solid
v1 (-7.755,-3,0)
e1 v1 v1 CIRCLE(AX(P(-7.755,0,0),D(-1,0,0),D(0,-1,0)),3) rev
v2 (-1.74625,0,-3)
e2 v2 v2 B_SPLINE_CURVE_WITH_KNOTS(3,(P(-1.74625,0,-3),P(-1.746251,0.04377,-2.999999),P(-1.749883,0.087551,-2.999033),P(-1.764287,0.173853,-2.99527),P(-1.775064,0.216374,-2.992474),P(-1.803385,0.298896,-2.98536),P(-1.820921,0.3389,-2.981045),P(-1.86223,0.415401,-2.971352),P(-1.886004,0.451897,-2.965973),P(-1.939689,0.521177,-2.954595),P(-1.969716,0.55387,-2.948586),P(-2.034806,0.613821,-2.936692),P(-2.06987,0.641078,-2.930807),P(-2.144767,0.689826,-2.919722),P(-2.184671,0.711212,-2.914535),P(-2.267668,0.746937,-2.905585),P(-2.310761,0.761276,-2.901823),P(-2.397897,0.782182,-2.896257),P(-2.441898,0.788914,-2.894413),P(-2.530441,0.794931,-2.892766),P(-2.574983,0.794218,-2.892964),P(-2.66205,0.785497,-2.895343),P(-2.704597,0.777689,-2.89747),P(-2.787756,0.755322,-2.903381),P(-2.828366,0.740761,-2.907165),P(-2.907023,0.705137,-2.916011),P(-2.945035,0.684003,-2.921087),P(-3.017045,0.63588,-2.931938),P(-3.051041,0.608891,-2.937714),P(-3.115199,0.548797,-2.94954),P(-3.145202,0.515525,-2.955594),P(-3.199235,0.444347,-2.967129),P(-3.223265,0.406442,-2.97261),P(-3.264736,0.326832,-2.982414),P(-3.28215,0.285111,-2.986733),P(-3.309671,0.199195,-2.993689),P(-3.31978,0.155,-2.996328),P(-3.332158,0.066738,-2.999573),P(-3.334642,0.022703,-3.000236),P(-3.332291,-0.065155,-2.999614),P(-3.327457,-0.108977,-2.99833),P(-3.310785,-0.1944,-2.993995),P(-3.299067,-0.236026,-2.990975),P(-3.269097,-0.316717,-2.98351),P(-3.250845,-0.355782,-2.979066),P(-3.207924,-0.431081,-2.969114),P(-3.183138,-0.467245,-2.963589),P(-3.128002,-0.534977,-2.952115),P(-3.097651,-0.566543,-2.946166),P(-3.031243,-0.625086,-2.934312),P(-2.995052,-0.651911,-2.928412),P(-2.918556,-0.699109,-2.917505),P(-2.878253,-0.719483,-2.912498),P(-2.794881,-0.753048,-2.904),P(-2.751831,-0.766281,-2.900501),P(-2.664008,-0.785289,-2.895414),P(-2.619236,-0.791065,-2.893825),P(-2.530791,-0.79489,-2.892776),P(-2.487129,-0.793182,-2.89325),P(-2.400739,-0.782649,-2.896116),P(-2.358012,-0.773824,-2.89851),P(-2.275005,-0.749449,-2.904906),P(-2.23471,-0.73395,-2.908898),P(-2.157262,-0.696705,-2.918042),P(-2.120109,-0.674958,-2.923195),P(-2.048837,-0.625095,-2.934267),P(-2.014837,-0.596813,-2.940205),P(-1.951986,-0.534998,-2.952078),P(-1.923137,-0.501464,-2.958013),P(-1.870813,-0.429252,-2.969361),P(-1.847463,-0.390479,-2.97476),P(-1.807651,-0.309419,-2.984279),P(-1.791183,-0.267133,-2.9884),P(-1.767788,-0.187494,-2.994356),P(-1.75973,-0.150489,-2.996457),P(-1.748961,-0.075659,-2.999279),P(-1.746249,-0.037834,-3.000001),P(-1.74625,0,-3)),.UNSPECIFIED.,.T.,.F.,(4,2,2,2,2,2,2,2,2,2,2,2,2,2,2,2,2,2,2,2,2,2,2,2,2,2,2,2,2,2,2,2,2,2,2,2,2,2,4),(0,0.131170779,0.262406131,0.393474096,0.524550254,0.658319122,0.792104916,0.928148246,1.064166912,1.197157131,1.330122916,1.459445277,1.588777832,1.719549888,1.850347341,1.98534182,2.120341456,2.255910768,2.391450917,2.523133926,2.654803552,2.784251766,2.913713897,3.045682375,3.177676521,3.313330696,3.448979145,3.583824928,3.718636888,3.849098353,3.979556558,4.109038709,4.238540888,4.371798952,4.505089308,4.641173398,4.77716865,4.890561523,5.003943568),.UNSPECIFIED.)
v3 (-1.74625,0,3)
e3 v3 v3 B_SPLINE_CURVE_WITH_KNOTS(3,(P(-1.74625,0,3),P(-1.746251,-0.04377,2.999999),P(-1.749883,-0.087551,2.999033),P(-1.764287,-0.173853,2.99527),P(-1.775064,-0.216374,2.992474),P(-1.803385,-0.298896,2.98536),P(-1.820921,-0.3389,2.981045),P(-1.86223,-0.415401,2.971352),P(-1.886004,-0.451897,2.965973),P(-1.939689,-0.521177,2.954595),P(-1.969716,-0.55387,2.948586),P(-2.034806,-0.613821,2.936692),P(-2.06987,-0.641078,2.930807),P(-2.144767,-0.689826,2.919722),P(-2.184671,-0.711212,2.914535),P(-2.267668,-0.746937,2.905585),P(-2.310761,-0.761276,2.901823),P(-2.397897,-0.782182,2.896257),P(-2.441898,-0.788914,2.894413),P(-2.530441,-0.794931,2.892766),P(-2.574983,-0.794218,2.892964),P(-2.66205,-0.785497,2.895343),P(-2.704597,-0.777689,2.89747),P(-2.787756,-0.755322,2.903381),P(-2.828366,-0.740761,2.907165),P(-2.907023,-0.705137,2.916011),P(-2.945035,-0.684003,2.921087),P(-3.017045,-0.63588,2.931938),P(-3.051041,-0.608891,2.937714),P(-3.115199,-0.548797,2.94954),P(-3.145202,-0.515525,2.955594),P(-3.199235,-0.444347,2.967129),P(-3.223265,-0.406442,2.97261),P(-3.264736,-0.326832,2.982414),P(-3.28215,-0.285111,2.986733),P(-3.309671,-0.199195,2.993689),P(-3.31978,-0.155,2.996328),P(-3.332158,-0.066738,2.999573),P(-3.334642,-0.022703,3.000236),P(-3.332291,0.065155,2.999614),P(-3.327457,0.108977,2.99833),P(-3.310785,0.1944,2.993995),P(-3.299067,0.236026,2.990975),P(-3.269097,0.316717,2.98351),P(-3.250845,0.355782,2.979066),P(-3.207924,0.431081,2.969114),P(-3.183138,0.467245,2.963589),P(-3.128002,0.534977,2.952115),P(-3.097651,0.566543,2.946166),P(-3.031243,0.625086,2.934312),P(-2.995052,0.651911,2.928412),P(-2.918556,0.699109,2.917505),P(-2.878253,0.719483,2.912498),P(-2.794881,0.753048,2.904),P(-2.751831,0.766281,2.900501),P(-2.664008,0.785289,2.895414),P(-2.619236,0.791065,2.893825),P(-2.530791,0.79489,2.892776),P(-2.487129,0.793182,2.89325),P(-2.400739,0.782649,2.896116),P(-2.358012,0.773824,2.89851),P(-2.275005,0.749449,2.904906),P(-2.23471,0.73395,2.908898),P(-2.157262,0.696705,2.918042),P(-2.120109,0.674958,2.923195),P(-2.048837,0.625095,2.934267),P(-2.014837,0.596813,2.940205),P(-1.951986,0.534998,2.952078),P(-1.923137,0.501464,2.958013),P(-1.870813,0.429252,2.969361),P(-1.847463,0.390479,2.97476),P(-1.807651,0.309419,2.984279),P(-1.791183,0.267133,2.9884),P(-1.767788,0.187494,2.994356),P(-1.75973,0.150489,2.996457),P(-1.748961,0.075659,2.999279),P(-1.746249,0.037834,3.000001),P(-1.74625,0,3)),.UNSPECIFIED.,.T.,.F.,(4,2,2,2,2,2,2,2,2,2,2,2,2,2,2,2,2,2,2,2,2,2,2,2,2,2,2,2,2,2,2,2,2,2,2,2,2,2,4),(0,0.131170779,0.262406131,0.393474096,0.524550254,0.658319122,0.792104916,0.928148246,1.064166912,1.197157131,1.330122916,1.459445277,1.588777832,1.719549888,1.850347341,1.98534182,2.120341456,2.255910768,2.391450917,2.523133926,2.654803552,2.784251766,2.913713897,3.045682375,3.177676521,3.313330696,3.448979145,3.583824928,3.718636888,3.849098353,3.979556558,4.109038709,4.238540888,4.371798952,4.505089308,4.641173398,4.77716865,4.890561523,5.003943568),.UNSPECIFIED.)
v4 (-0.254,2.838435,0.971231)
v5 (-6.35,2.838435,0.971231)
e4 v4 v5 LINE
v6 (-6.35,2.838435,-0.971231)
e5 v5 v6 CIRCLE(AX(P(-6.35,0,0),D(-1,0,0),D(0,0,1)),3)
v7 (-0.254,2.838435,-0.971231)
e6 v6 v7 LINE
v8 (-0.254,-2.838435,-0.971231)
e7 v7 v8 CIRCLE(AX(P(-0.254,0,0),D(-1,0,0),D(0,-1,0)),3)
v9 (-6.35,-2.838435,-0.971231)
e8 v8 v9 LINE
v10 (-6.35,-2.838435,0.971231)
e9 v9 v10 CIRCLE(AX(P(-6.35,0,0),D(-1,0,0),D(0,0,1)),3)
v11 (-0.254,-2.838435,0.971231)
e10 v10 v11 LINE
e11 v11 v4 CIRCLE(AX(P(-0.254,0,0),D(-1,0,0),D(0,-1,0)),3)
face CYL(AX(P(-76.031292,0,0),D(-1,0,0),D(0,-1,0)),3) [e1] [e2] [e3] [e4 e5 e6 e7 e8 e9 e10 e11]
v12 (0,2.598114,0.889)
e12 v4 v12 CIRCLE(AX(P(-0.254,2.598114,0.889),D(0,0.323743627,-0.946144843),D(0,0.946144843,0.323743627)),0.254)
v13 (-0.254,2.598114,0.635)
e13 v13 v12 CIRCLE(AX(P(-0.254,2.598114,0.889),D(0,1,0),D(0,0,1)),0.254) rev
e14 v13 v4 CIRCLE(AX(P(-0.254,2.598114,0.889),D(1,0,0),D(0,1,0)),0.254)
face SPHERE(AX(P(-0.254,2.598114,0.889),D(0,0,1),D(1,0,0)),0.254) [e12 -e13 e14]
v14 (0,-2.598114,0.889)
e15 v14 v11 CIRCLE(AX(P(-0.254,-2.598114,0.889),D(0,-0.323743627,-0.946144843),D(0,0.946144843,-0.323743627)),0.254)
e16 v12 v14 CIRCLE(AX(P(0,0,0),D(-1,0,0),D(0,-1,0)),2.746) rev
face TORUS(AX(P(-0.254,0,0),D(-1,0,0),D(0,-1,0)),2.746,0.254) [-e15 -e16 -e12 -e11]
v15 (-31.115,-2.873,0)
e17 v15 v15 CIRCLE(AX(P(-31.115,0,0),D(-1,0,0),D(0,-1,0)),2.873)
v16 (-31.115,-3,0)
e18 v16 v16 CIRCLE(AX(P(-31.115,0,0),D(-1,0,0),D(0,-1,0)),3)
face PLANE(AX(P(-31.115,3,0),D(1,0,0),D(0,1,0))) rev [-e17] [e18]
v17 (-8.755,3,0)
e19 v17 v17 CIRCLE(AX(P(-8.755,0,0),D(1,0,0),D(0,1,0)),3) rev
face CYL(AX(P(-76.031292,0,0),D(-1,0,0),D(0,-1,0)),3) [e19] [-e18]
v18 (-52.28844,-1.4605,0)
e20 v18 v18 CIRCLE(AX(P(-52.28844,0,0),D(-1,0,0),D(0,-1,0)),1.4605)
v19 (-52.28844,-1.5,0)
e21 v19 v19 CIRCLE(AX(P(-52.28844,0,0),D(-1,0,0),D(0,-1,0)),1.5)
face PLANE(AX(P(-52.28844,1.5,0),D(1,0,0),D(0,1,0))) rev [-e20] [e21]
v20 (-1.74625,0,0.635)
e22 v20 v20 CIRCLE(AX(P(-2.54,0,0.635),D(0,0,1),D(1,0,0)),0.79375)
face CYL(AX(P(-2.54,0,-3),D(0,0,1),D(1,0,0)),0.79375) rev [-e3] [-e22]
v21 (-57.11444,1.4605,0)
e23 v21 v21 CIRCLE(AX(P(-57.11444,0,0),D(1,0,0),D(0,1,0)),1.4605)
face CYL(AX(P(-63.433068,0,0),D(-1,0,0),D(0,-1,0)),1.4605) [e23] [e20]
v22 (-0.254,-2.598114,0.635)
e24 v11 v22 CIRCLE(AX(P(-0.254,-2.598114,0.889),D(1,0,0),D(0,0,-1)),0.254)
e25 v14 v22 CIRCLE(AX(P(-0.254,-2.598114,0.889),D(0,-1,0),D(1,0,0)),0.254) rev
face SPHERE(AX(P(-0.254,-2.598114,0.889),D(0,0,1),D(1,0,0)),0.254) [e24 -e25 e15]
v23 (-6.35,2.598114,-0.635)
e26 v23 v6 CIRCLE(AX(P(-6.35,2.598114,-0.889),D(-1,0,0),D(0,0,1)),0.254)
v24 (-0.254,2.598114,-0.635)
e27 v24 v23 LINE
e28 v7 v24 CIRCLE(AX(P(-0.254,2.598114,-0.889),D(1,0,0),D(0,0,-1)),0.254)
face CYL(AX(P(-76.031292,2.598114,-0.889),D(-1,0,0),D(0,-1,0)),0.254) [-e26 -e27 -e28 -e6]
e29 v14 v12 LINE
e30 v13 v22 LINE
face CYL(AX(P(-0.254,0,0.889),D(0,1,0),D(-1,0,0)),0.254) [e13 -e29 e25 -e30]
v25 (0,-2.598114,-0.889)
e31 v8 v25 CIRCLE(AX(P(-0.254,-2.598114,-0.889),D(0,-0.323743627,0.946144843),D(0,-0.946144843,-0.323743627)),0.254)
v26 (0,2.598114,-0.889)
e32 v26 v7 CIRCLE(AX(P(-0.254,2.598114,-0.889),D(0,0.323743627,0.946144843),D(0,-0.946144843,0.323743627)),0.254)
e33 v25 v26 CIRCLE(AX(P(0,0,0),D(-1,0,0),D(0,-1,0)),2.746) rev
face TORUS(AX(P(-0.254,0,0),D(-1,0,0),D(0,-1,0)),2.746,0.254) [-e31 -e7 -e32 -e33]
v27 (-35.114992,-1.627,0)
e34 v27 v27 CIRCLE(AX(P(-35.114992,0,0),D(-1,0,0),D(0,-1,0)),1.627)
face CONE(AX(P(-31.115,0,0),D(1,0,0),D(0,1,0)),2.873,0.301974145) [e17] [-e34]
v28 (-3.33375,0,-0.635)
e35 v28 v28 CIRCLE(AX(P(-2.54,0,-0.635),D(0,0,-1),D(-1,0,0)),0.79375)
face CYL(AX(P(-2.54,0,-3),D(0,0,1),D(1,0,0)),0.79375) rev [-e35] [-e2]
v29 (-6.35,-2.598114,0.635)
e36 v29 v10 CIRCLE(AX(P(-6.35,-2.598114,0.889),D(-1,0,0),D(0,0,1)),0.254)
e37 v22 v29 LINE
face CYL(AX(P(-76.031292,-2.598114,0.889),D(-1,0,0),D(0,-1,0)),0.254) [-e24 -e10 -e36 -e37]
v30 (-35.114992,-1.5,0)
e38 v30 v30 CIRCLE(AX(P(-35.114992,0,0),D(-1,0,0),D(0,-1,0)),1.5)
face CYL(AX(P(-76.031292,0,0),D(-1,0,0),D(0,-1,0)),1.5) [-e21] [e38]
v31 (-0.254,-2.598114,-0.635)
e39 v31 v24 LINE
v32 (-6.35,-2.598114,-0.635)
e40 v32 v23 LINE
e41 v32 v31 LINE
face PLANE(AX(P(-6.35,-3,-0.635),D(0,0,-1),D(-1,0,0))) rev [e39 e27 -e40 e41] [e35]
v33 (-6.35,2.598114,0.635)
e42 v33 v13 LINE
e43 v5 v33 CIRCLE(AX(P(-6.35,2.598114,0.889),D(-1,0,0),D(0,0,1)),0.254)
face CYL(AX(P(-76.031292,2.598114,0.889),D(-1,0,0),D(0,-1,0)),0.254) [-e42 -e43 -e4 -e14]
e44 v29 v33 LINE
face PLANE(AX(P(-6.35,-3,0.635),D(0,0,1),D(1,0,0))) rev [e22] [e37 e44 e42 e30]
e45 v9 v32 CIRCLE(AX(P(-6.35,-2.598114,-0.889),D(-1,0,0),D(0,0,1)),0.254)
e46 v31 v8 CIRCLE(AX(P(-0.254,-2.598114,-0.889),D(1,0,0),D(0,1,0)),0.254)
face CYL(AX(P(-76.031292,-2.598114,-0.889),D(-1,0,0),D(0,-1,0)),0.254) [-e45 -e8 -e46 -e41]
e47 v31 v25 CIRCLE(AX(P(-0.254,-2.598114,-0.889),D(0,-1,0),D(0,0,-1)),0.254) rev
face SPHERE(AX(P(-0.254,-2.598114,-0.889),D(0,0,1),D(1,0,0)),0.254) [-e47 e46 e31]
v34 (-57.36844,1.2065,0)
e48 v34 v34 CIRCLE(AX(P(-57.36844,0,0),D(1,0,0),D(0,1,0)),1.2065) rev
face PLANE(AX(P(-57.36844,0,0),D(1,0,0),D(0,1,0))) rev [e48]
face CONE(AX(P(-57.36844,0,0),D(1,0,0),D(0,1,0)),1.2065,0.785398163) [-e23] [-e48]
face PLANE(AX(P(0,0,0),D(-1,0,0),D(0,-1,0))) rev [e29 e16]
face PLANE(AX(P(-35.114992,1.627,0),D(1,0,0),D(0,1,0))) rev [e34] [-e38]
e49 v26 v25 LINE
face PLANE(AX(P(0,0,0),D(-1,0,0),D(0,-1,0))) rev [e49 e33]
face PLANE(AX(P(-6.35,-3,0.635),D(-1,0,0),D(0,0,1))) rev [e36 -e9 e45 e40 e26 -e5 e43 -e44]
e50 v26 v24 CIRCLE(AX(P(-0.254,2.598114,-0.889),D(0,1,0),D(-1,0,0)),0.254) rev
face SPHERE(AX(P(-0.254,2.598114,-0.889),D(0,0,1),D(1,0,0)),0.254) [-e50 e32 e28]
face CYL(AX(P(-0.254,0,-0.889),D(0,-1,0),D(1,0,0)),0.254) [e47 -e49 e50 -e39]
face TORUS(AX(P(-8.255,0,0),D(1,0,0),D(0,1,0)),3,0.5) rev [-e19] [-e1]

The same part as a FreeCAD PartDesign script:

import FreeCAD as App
import Part
import Sketcher
from FreeCAD import Vector
Q = App.Units.Quantity


def edges_at(feature, points):
    """Names of the edges that pass closest to the given points."""
    edges = feature.Shape.Edges
    near = lambda p: min(range(len(edges)), key=lambda i: edges[i].distToShape(Part.Vertex(*p))[0])
    return sorted({f"Edge{near(p) + 1}" for p in points})

doc = App.newDocument("Part")
body = doc.addObject("PartDesign::Body", "Body")

# Sketch on XY plane
sketch1 = body.newObject("Sketcher::SketchObject", "Sketch")
sketch1.AttachmentSupport = (doc.getObject("XY_Plane"), [""])
sketch1.MapMode = "FlatFace"
sketch1.addGeometry(Part.LineSegment(Vector(0, 0, 0), Vector(0, 3, 0)), False)
sketch1.addGeometry(Part.LineSegment(Vector(0, 3, 0), Vector(-31.115, 3, 0)), False)
sketch1.addGeometry(Part.LineSegment(Vector(-31.115, 3, 0), Vector(-31.115, 2.873, 0)), False)
sketch1.addGeometry(Part.LineSegment(Vector(-31.115, 2.873, 0), Vector(-35.114992, 1.627, 0)), False)
sketch1.addGeometry(Part.LineSegment(Vector(-35.114992, 1.627, 0), Vector(-35.114992, 1.5, 0)), False)
sketch1.addGeometry(Part.LineSegment(Vector(-35.114992, 1.5, 0), Vector(-57.36844, 1.5, 0)), False)
sketch1.addGeometry(Part.LineSegment(Vector(-57.36844, 1.5, 0), Vector(-57.36844, 0, 0)), False)
sketch1.addGeometry(Part.LineSegment(Vector(-57.36844, 0, 0), Vector(0, 0, 0)), False)
sketch1.addConstraint(Sketcher.Constraint("Coincident", 0, 2, 1, 1))
sketch1.addConstraint(Sketcher.Constraint("Coincident", 1, 2, 2, 1))
sketch1.addConstraint(Sketcher.Constraint("Coincident", 2, 2, 3, 1))
sketch1.addConstraint(Sketcher.Constraint("Coincident", 3, 2, 4, 1))
sketch1.addConstraint(Sketcher.Constraint("Coincident", 4, 2, 5, 1))
sketch1.addConstraint(Sketcher.Constraint("Coincident", 5, 2, 6, 1))
sketch1.addConstraint(Sketcher.Constraint("Coincident", 6, 2, 7, 1))
sketch1.addConstraint(Sketcher.Constraint("Coincident", 7, 2, 0, 1))
sketch1.addConstraint(Sketcher.Constraint("Vertical", 0))
sketch1.addConstraint(Sketcher.Constraint("Horizontal", 1))
sketch1.addConstraint(Sketcher.Constraint("Vertical", 2))
sketch1.addConstraint(Sketcher.Constraint("Vertical", 4))
sketch1.addConstraint(Sketcher.Constraint("Horizontal", 5))
sketch1.addConstraint(Sketcher.Constraint("Vertical", 6))
sketch1.addConstraint(Sketcher.Constraint("Horizontal", 7))
sketch1.addConstraint(Sketcher.Constraint("Coincident", 7, 2, -1, 1))
sketch1.addConstraint(Sketcher.Constraint("Equal", 2, 4))
sketch1.addConstraint(Sketcher.Constraint("DistanceX", 1, 2, 1, 1, Q("1.225 in")))
sketch1.addConstraint(Sketcher.Constraint("DistanceY", 2, 2, 2, 1, Q("0.005 in")))
sketch1.addConstraint(Sketcher.Constraint("DistanceX", 7, 1, 7, 2, Q("2.2586 in")))
sketch1.addConstraint(Sketcher.Constraint("DistanceY", 0, 1, 0, 2, 3.0))
sketch1.addConstraint(Sketcher.Constraint("DistanceY", 6, 2, 6, 1, 1.5))
sketch1.addConstraint(Sketcher.Constraint("DistanceX", 5, 2, 5, 1, 22.253448))
revolution = body.newObject("PartDesign::Revolution", "Revolution")
revolution.Profile = sketch1
revolution.ReferenceAxis = (sketch1, ["H_Axis"])
revolution.Angle = 360

# Sketch on XZ plane
sketch2 = body.newObject("Sketcher::SketchObject", "Sketch001")
sketch2.AttachmentSupport = (doc.getObject("XZ_Plane"), [""])
sketch2.MapMode = "FlatFace"
sketch2.addGeometry(Part.LineSegment(Vector(-6.35, -0.635, 0), Vector(-6.35, 0.635, 0)), False)
sketch2.addGeometry(Part.LineSegment(Vector(-6.35, 0.635, 0), Vector(6.35, 0.635, 0)), False)
sketch2.addGeometry(Part.LineSegment(Vector(6.35, 0.635, 0), Vector(6.35, -0.635, 0)), False)
sketch2.addGeometry(Part.LineSegment(Vector(6.35, -0.635, 0), Vector(-6.35, -0.635, 0)), False)
sketch2.addConstraint(Sketcher.Constraint("Coincident", 0, 2, 1, 1))
sketch2.addConstraint(Sketcher.Constraint("Coincident", 1, 2, 2, 1))
sketch2.addConstraint(Sketcher.Constraint("Coincident", 2, 2, 3, 1))
sketch2.addConstraint(Sketcher.Constraint("Coincident", 3, 2, 0, 1))
sketch2.addConstraint(Sketcher.Constraint("Vertical", 0))
sketch2.addConstraint(Sketcher.Constraint("Horizontal", 1))
sketch2.addConstraint(Sketcher.Constraint("Vertical", 2))
sketch2.addConstraint(Sketcher.Constraint("Horizontal", 3))
sketch2.addConstraint(Sketcher.Constraint("Symmetric", 0, 2, 2, 2, -1, 1))
sketch2.addConstraint(Sketcher.Constraint("DistanceX", 1, 1, 1, 2, Q("0.5 in")))
sketch2.addConstraint(Sketcher.Constraint("DistanceY", 0, 1, 0, 2, Q("0.05 in")))
pocket1 = body.newObject("PartDesign::Pocket", "Pocket")
pocket1.Profile = sketch2
pocket1.Type = "ThroughAll"
pocket1.Midplane = True

# Sketch on XY plane
sketch3 = body.newObject("Sketcher::SketchObject", "Sketch002")
sketch3.AttachmentSupport = (doc.getObject("XY_Plane"), [""])
sketch3.MapMode = "FlatFace"
sketch3.addGeometry(Part.Circle(Vector(-2.54, 0, 0), Vector(0, 0, 1), 0.79375), False)
sketch3.addConstraint(Sketcher.Constraint("PointOnObject", 0, 3, -1))
sketch3.addConstraint(Sketcher.Constraint("Diameter", 0, Q("0.0625 in")))
sketch3.addConstraint(Sketcher.Constraint("DistanceX", 0, 3, -1, 1, Q("0.1 in")))
pocket2 = body.newObject("PartDesign::Pocket", "Pocket001")
pocket2.Profile = sketch3
pocket2.Type = "ThroughAll"
pocket2.Midplane = True

# Sketch on XY plane
sketch4 = body.newObject("Sketcher::SketchObject", "Sketch003")
sketch4.AttachmentSupport = (doc.getObject("XY_Plane"), [""])
sketch4.MapMode = "FlatFace"
sketch4.addGeometry(Part.LineSegment(Vector(-57.36844, 1.5, 0), Vector(-57.36844, 1.4605, 0)), False)
sketch4.addGeometry(Part.LineSegment(Vector(-57.36844, 1.4605, 0), Vector(-52.28844, 1.4605, 0)), False)
sketch4.addGeometry(Part.LineSegment(Vector(-52.28844, 1.4605, 0), Vector(-52.28844, 1.5, 0)), False)
sketch4.addGeometry(Part.LineSegment(Vector(-52.28844, 1.5, 0), Vector(-57.36844, 1.5, 0)), False)
sketch4.addConstraint(Sketcher.Constraint("Coincident", 0, 2, 1, 1))
sketch4.addConstraint(Sketcher.Constraint("Coincident", 1, 2, 2, 1))
sketch4.addConstraint(Sketcher.Constraint("Coincident", 2, 2, 3, 1))
sketch4.addConstraint(Sketcher.Constraint("Coincident", 3, 2, 0, 1))
sketch4.addConstraint(Sketcher.Constraint("Vertical", 0))
sketch4.addConstraint(Sketcher.Constraint("Horizontal", 1))
sketch4.addConstraint(Sketcher.Constraint("Vertical", 2))
sketch4.addConstraint(Sketcher.Constraint("Horizontal", 3))
sketch4.addConstraint(Sketcher.Constraint("DistanceX", 1, 1, 1, 2, Q("0.2 in")))
sketch4.addConstraint(Sketcher.Constraint("DistanceY", 0, 2, 0, 1, 0.0395))
sketch4.addConstraint(Sketcher.Constraint("DistanceX", 0, 2, -1, 1, Q("2.2586 in")))
sketch4.addConstraint(Sketcher.Constraint("DistanceY", -1, 1, 0, 2, Q("0.0575 in")))
groove = body.newObject("PartDesign::Groove", "Groove")
groove.Profile = sketch4
groove.ReferenceAxis = (sketch4, ["H_Axis"])
groove.Angle = 360
doc.recompute()

chamfer = body.newObject("PartDesign::Chamfer", "Chamfer")
chamfer.Base = (groove, edges_at(groove, [(-57.368, -1.46, 0)]))
chamfer.Size = Q("0.01 in")
doc.recompute()

fillet = body.newObject("PartDesign::Fillet", "Fillet")
fillet.Base = (chamfer, edges_at(chamfer, [
    (0, 0, 3),
    (0, 0, -3),
    (0, 0, -0.635),
    (0, 0, 0.635),
    (-3.175, 2.932, 0.635),
    (-3.175, -2.932, 0.635),
    (-3.175, -2.932, -0.635),
    (-3.175, 2.932, -0.635),
]))
fillet.Radius = Q("0.01 in")

# Sketch on XY plane
sketch5 = body.newObject("Sketcher::SketchObject", "Sketch004")
sketch5.AttachmentSupport = (doc.getObject("XY_Plane"), [""])
sketch5.MapMode = "FlatFace"
sketch5.addGeometry(Part.Circle(Vector(-8.255, 3, 0), Vector(0, 0, 1), 0.5), False)
sketch5.addConstraint(Sketcher.Constraint("Diameter", 0, 1.0))
sketch5.addConstraint(Sketcher.Constraint("DistanceX", 0, 3, -1, 1, Q("0.325 in")))
sketch5.addConstraint(Sketcher.Constraint("DistanceY", -1, 1, 0, 3, 3.0))
groove2 = body.newObject("PartDesign::Groove", "Groove001")
groove2.Profile = sketch5
groove2.ReferenceAxis = (sketch5, ["H_Axis"])
groove2.Angle = 360

doc.recompute()
